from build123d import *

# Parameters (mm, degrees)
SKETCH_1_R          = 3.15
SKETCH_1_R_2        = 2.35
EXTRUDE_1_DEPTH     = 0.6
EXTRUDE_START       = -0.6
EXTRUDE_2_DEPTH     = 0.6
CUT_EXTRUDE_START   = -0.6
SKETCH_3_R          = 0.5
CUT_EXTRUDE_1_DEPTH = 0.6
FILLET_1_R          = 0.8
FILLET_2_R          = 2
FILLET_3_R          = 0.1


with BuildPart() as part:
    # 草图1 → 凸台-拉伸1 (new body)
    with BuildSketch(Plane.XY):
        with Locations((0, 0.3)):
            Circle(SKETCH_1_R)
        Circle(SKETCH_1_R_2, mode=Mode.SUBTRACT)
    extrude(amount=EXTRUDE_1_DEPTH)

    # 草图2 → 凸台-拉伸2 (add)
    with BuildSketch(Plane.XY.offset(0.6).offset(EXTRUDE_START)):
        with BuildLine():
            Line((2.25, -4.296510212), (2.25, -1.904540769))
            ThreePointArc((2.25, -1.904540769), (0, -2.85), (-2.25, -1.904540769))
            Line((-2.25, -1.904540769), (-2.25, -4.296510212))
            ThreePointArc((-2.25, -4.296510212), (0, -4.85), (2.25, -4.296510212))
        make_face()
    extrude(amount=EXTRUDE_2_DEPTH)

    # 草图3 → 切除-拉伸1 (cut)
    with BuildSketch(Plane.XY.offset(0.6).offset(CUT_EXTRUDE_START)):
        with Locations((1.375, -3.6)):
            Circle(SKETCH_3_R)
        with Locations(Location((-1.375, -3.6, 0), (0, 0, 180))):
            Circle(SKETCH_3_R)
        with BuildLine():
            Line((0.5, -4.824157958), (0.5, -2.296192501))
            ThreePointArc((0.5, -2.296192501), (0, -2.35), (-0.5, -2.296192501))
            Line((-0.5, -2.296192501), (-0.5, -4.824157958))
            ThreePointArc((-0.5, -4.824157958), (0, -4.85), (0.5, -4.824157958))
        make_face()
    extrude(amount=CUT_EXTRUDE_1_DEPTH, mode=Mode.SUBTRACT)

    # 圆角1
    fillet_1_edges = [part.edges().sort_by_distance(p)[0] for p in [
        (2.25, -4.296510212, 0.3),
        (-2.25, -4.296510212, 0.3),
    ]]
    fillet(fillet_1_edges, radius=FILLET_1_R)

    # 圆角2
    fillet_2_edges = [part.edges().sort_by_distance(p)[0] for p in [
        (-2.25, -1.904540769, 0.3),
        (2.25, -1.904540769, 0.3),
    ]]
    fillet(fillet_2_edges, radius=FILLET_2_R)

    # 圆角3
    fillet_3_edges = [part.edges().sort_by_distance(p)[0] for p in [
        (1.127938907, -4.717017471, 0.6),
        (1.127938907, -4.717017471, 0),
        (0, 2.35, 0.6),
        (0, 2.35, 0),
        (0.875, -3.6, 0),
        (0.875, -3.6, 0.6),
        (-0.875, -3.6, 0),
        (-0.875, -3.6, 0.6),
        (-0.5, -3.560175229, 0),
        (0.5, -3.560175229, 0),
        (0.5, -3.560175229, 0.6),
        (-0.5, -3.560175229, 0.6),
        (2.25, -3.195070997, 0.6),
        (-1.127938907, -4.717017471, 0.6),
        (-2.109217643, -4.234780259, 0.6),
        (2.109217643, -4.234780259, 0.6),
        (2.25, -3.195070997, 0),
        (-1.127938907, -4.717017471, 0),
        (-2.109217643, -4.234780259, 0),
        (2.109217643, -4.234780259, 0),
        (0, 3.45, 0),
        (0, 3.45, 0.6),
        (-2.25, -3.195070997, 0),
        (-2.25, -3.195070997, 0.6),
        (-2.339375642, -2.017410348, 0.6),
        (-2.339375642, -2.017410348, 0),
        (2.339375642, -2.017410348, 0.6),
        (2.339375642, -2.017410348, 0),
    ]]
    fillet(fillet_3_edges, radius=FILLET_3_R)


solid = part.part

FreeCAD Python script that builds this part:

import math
import FreeCAD as App
import Part
import Sketcher

V = App.Vector
Q = App.Units.Quantity


def edges_at(feature, points):
    """Names of the edges that pass closest to the given points."""
    edges = feature.Shape.Edges
    near = lambda p: min(range(len(edges)), key=lambda i: edges[i].distToShape(Part.Vertex(*p))[0])
    return sorted({f"Edge{near(p) + 1}" for p in points})

doc = App.newDocument("Part")
body = doc.addObject("PartDesign::Body", "Body")

sketch1 = doc.addObject("Sketcher::SketchObject", "Sketch")
body.addObject(sketch1)
sketch1.AttachmentSupport = (doc.XY_Plane, [""])
sketch1.MapMode = "FlatFace"
sketch1.addGeometry([
    Part.Circle(V(0, 0.3, 0), V(0, 0, 1), 3.15),
    Part.Circle(V(0, 0, 0), V(0, 0, 1), 2.35),
], False)
sketch1.addConstraint([
    Sketcher.Constraint("Coincident", 1, 3, -1, 1),
    Sketcher.Constraint("PointOnObject", 0, 3, -2),
    Sketcher.Constraint("Diameter", 0, Q("6.3 mm")),
    Sketcher.Constraint("Diameter", 1, Q("4.7 mm")),
    Sketcher.Constraint("DistanceY", -1, 1, 0, 3, Q("0.3 mm")),
])
pad1 = doc.addObject("PartDesign::Pad", "Pad")
body.addObject(pad1)
pad1.Profile = sketch1
pad1.Length = 0.6

sketch2 = doc.addObject("Sketcher::SketchObject", "Sketch001")
body.addObject(sketch2)
sketch2.AttachmentSupport = (doc.XY_Plane, [""])
sketch2.MapMode = "FlatFace"
sketch2.addGeometry([
    Part.LineSegment(V(2.25, -4.29651, 0), V(2.25, -1.904541, 0)),
    Part.ArcOfCircle(Part.Circle(V(0, 0.3, 0), V(0, 0, 1), 3.15), math.radians(-135.584691), math.radians(-44.415309)),
    Part.LineSegment(V(-2.25, -1.904541, 0), V(-2.25, -4.29651, 0)),
    Part.ArcOfCircle(Part.Circle(V(0, 0, 0), V(0, 0, 1), 4.85), math.radians(-117.640189), math.radians(-62.359811)),
], False)
sketch2.addConstraint([
    Sketcher.Constraint("Coincident", 0, 2, 1, 2),
    Sketcher.Constraint("Coincident", 1, 1, 2, 1),
    Sketcher.Constraint("Coincident", 2, 2, 3, 1),
    Sketcher.Constraint("Coincident", 3, 2, 0, 1),
    Sketcher.Constraint("Vertical", 0),
    Sketcher.Constraint("Vertical", 2),
    Sketcher.Constraint("Coincident", 3, 3, -1, 1),
    Sketcher.Constraint("Symmetric", 0, 2, 1, 1, -2),
    Sketcher.Constraint("Radius", 1, Q("3.15 mm")),
    Sketcher.Constraint("Radius", 3, Q("4.85 mm")),
    Sketcher.Constraint("DistanceY", -1, 1, 1, 3, Q("0.3 mm")),
    Sketcher.Constraint("DistanceX", 1, 1, 0, 2, Q("4.5 mm")),
])
pad2 = doc.addObject("PartDesign::Pad", "Pad001")
body.addObject(pad2)
pad2.Profile = sketch2
pad2.Length = 0.6

sketch3 = doc.addObject("Sketcher::SketchObject", "Sketch002")
body.addObject(sketch3)
sketch3.AttachmentSupport = (doc.XY_Plane, [""])
sketch3.MapMode = "FlatFace"
sketch3.addGeometry([
    Part.Circle(V(1.375, -3.6, 0), V(0, 0, 1), 0.5),
    Part.Circle(V(-1.375, -3.6, 0), V(0, 0, 1), 0.5),
    Part.LineSegment(V(0.5, -4.824158, 0), V(0.5, -2.296193, 0)),
    Part.ArcOfCircle(Part.Circle(V(0, 0, 0), V(0, 0, 1), 2.35), math.radians(-102.284494), math.radians(-77.715506)),
    Part.LineSegment(V(-0.5, -2.296193, 0), V(-0.5, -4.824158, 0)),
    Part.ArcOfCircle(Part.Circle(V(0, 0, 0), V(0, 0, 1), 4.85), math.radians(-95.917295), math.radians(-84.082705)),
], False)
sketch3.addConstraint([
    Sketcher.Constraint("Coincident", 2, 2, 3, 2),
    Sketcher.Constraint("Coincident", 3, 1, 4, 1),
    Sketcher.Constraint("Coincident", 4, 2, 5, 1),
    Sketcher.Constraint("Coincident", 5, 2, 2, 1),
    Sketcher.Constraint("Vertical", 2),
    Sketcher.Constraint("Vertical", 4),
    Sketcher.Constraint("Coincident", 3, 3, -1, 1),
    Sketcher.Constraint("Coincident", 5, 3, -1, 1),
    Sketcher.Constraint("Equal", 0, 1),
    Sketcher.Constraint("Symmetric", 0, 3, 1, 3, -2),
    Sketcher.Constraint("Horizontal", 2, 2, 3, 1),
    Sketcher.Constraint("Diameter", 0, Q("1 mm")),
    Sketcher.Constraint("Radius", 3, Q("2.35 mm")),
    Sketcher.Constraint("Radius", 5, Q("4.85 mm")),
    Sketcher.Constraint("DistanceX", 3, 1, 2, 2, Q("1 mm")),
    Sketcher.Constraint("DistanceY", 0, 3, -1, 1, Q("3.6 mm")),
    Sketcher.Constraint("DistanceX", 1, 3, 0, 3, Q("2.75 mm")),
])
pocket1 = doc.addObject("PartDesign::Pocket", "Pocket")
body.addObject(pocket1)
pocket1.Profile = sketch3
pocket1.Length = 0.6
pocket1.Reversed = True
doc.recompute()

fillet = doc.addObject("PartDesign::Fillet", "Fillet")
body.addObject(fillet)
fillet.Base = (pocket1, edges_at(pocket1, [(2.25, -4.297, 0.3), (-2.25, -4.297, 0.3)]))
fillet.Radius = 0.8
doc.recompute()

fillet2 = doc.addObject("PartDesign::Fillet", "Fillet001")
body.addObject(fillet2)
fillet2.Base = (fillet, edges_at(fillet, [(-2.25, -1.905, 0.3), (2.25, -1.905, 0.3)]))
fillet2.Radius = 2
doc.recompute()

fillet3 = doc.addObject("PartDesign::Fillet", "Fillet002")
body.addObject(fillet3)
fillet3.Base = (fillet2, edges_at(fillet2, [
    (1.128, -4.717, 0.6),
    (1.128, -4.717, 0),
    (0, 2.35, 0.6),
    (0, 2.35, 0),
    (0.875, -3.6, 0),
    (0.875, -3.6, 0.6),
    (-0.875, -3.6, 0),
    (-0.875, -3.6, 0.6),
    (-0.5, -3.56, 0),
    (0.5, -3.56, 0),
    (0.5, -3.56, 0.6),
    (-0.5, -3.56, 0.6),
    (2.25, -3.195, 0.6),
    (-1.128, -4.717, 0.6),
    (-2.109, -4.235, 0.6),
    (2.109, -4.235, 0.6),
    (2.25, -3.195, 0),
    (-1.128, -4.717, 0),
    (-2.109, -4.235, 0),
    (2.109, -4.235, 0),
    (0, 3.45, 0),
    (0, 3.45, 0.6),
    (-2.25, -3.195, 0),
    (-2.25, -3.195, 0.6),
    (-2.339, -2.017, 0.6),
    (-2.339, -2.017, 0),
    (2.339, -2.017, 0.6),
    (2.339, -2.017, 0),
]))
fillet3.Radius = 0.1

doc.recompute()
